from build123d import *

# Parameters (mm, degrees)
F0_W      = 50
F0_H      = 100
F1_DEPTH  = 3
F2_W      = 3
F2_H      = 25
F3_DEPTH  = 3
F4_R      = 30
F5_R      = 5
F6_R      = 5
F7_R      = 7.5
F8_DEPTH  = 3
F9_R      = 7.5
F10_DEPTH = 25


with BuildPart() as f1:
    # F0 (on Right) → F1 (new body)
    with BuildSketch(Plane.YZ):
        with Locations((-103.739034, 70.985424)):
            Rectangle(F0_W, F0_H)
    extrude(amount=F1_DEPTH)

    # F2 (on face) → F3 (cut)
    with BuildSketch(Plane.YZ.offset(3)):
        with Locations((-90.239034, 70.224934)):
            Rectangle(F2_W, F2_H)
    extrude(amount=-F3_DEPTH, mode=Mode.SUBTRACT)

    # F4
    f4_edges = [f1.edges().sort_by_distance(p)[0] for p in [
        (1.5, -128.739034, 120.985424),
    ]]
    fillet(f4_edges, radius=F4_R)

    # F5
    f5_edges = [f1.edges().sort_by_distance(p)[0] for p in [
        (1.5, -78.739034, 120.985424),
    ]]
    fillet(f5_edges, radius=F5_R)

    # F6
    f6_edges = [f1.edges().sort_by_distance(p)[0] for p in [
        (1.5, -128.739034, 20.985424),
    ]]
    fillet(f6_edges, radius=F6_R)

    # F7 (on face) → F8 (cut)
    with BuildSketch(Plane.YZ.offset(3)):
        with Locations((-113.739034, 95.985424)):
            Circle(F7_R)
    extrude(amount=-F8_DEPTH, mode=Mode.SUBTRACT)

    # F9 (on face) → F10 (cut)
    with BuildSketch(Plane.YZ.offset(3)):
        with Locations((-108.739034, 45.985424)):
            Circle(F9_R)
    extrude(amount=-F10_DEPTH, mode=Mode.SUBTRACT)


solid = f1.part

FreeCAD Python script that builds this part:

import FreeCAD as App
import Part
import Sketcher
Q = App.Units.Quantity


def edges_at(feature, points):
    """Names of the edges that pass closest to the given points."""
    edges = feature.Shape.Edges
    near = lambda p: min(range(len(edges)), key=lambda i: edges[i].distToShape(Part.Vertex(*p))[0])
    return sorted({f"Edge{near(p) + 1}" for p in points})


def add_polygon(sketch, points):
    """Adds a closed chain of lines whose ends are joined by coincident constraints."""
    first, n = sketch.GeometryCount, len(points)
    for a, b in zip(points, points[1:] + points[:1]):
        sketch.addGeometry(Part.LineSegment(App.Vector(*a, 0), App.Vector(*b, 0)), False)
    for i in range(n):
        sketch.addConstraint(Sketcher.Constraint("Coincident", first + i, 2, first + (i + 1) % n, 1))

doc = App.newDocument("Part")
body = doc.addObject("PartDesign::Body", "Body")

sketch1 = doc.addObject("Sketcher::SketchObject", "Sketch")
body.addObject(sketch1)
sketch1.AttachmentSupport = (doc.YZ_Plane, [""])
sketch1.MapMode = "FlatFace"
add_polygon(sketch1, [(-129, 121), (-129, 21), (-79, 21), (-79, 121)])
sketch1.addConstraint(Sketcher.Constraint("Vertical", 0))
sketch1.addConstraint(Sketcher.Constraint("Horizontal", 1))
sketch1.addConstraint(Sketcher.Constraint("Vertical", 2))
sketch1.addConstraint(Sketcher.Constraint("Horizontal", 3))
sketch1.addConstraint(Sketcher.Constraint("DistanceX", 1, 1, 1, 2, Q("50 mm")))
sketch1.addConstraint(Sketcher.Constraint("DistanceY", 0, 2, 0, 1, Q("100 mm")))
sketch1.addConstraint(Sketcher.Constraint("DistanceX", 0, 2, -1, 1, Q("128.739034 mm")))
sketch1.addConstraint(Sketcher.Constraint("DistanceY", -1, 1, 0, 2, Q("20.985424 mm")))
pad1 = doc.addObject("PartDesign::Pad", "Pad")
body.addObject(pad1)
pad1.Profile = sketch1
pad1.Length = 3

sketch2 = doc.addObject("Sketcher::SketchObject", "Sketch001")
body.addObject(sketch2)
sketch2.AttachmentSupport = (doc.YZ_Plane, [""])
sketch2.MapMode = "FlatFace"
sketch2.AttachmentOffset = App.Placement(App.Vector(0, 0, 3), App.Rotation())
add_polygon(sketch2, [(-91.7, 82.7), (-91.7, 57.7), (-88.7, 57.7), (-88.7, 82.7)])
sketch2.addConstraint(Sketcher.Constraint("Vertical", 0))
sketch2.addConstraint(Sketcher.Constraint("Horizontal", 1))
sketch2.addConstraint(Sketcher.Constraint("Vertical", 2))
sketch2.addConstraint(Sketcher.Constraint("Horizontal", 3))
sketch2.addConstraint(Sketcher.Constraint("DistanceX", 1, 1, 1, 2, Q("3 mm")))
sketch2.addConstraint(Sketcher.Constraint("DistanceY", 0, 2, 0, 1, Q("25 mm")))
sketch2.addConstraint(Sketcher.Constraint("DistanceX", 0, 2, -1, 1, Q("91.739034 mm")))
sketch2.addConstraint(Sketcher.Constraint("DistanceY", -1, 1, 0, 2, Q("57.724934 mm")))
pocket1 = doc.addObject("PartDesign::Pocket", "Pocket")
body.addObject(pocket1)
pocket1.Profile = sketch2
pocket1.Length = 3
doc.recompute()

fillet = doc.addObject("PartDesign::Fillet", "Fillet")
body.addObject(fillet)
fillet.Base = (pocket1, edges_at(pocket1, [(1.5, -128.739, 120.985)]))
fillet.Radius = 30
doc.recompute()

fillet2 = doc.addObject("PartDesign::Fillet", "Fillet001")
body.addObject(fillet2)
fillet2.Base = (fillet, edges_at(fillet, [(1.5, -78.739, 120.985)]))
fillet2.Radius = 5
doc.recompute()

fillet3 = doc.addObject("PartDesign::Fillet", "Fillet002")
body.addObject(fillet3)
fillet3.Base = (fillet2, edges_at(fillet2, [(1.5, -128.739, 20.985)]))
fillet3.Radius = 5

sketch3 = doc.addObject("Sketcher::SketchObject", "Sketch002")
body.addObject(sketch3)
sketch3.AttachmentSupport = (doc.YZ_Plane, [""])
sketch3.MapMode = "FlatFace"
sketch3.AttachmentOffset = App.Placement(App.Vector(0, 0, 3), App.Rotation())
sketch3.addGeometry(Part.Circle(App.Vector(-114, 96, 0), App.Vector(0, 0, 1), 8), False)
sketch3.addConstraint(Sketcher.Constraint("Diameter", 0, Q("15 mm")))
sketch3.addConstraint(Sketcher.Constraint("DistanceX", 0, 3, -1, 1, Q("113.739034 mm")))
sketch3.addConstraint(Sketcher.Constraint("DistanceY", -1, 1, 0, 3, Q("95.985424 mm")))
pocket2 = doc.addObject("PartDesign::Pocket", "Pocket001")
body.addObject(pocket2)
pocket2.Profile = sketch3
pocket2.Length = 3

sketch4 = doc.addObject("Sketcher::SketchObject", "Sketch003")
body.addObject(sketch4)
sketch4.AttachmentSupport = (doc.YZ_Plane, [""])
sketch4.MapMode = "FlatFace"
sketch4.AttachmentOffset = App.Placement(App.Vector(0, 0, 3), App.Rotation())
sketch4.addGeometry(Part.Circle(App.Vector(-109, 46, 0), App.Vector(0, 0, 1), 8), False)
sketch4.addConstraint(Sketcher.Constraint("Diameter", 0, Q("15 mm")))
sketch4.addConstraint(Sketcher.Constraint("DistanceX", 0, 3, -1, 1, Q("108.739034 mm")))
sketch4.addConstraint(Sketcher.Constraint("DistanceY", -1, 1, 0, 3, Q("45.985424 mm")))
pocket3 = doc.addObject("PartDesign::Pocket", "Pocket002")
body.addObject(pocket3)
pocket3.Profile = sketch4
pocket3.Length = 25

doc.recompute()
